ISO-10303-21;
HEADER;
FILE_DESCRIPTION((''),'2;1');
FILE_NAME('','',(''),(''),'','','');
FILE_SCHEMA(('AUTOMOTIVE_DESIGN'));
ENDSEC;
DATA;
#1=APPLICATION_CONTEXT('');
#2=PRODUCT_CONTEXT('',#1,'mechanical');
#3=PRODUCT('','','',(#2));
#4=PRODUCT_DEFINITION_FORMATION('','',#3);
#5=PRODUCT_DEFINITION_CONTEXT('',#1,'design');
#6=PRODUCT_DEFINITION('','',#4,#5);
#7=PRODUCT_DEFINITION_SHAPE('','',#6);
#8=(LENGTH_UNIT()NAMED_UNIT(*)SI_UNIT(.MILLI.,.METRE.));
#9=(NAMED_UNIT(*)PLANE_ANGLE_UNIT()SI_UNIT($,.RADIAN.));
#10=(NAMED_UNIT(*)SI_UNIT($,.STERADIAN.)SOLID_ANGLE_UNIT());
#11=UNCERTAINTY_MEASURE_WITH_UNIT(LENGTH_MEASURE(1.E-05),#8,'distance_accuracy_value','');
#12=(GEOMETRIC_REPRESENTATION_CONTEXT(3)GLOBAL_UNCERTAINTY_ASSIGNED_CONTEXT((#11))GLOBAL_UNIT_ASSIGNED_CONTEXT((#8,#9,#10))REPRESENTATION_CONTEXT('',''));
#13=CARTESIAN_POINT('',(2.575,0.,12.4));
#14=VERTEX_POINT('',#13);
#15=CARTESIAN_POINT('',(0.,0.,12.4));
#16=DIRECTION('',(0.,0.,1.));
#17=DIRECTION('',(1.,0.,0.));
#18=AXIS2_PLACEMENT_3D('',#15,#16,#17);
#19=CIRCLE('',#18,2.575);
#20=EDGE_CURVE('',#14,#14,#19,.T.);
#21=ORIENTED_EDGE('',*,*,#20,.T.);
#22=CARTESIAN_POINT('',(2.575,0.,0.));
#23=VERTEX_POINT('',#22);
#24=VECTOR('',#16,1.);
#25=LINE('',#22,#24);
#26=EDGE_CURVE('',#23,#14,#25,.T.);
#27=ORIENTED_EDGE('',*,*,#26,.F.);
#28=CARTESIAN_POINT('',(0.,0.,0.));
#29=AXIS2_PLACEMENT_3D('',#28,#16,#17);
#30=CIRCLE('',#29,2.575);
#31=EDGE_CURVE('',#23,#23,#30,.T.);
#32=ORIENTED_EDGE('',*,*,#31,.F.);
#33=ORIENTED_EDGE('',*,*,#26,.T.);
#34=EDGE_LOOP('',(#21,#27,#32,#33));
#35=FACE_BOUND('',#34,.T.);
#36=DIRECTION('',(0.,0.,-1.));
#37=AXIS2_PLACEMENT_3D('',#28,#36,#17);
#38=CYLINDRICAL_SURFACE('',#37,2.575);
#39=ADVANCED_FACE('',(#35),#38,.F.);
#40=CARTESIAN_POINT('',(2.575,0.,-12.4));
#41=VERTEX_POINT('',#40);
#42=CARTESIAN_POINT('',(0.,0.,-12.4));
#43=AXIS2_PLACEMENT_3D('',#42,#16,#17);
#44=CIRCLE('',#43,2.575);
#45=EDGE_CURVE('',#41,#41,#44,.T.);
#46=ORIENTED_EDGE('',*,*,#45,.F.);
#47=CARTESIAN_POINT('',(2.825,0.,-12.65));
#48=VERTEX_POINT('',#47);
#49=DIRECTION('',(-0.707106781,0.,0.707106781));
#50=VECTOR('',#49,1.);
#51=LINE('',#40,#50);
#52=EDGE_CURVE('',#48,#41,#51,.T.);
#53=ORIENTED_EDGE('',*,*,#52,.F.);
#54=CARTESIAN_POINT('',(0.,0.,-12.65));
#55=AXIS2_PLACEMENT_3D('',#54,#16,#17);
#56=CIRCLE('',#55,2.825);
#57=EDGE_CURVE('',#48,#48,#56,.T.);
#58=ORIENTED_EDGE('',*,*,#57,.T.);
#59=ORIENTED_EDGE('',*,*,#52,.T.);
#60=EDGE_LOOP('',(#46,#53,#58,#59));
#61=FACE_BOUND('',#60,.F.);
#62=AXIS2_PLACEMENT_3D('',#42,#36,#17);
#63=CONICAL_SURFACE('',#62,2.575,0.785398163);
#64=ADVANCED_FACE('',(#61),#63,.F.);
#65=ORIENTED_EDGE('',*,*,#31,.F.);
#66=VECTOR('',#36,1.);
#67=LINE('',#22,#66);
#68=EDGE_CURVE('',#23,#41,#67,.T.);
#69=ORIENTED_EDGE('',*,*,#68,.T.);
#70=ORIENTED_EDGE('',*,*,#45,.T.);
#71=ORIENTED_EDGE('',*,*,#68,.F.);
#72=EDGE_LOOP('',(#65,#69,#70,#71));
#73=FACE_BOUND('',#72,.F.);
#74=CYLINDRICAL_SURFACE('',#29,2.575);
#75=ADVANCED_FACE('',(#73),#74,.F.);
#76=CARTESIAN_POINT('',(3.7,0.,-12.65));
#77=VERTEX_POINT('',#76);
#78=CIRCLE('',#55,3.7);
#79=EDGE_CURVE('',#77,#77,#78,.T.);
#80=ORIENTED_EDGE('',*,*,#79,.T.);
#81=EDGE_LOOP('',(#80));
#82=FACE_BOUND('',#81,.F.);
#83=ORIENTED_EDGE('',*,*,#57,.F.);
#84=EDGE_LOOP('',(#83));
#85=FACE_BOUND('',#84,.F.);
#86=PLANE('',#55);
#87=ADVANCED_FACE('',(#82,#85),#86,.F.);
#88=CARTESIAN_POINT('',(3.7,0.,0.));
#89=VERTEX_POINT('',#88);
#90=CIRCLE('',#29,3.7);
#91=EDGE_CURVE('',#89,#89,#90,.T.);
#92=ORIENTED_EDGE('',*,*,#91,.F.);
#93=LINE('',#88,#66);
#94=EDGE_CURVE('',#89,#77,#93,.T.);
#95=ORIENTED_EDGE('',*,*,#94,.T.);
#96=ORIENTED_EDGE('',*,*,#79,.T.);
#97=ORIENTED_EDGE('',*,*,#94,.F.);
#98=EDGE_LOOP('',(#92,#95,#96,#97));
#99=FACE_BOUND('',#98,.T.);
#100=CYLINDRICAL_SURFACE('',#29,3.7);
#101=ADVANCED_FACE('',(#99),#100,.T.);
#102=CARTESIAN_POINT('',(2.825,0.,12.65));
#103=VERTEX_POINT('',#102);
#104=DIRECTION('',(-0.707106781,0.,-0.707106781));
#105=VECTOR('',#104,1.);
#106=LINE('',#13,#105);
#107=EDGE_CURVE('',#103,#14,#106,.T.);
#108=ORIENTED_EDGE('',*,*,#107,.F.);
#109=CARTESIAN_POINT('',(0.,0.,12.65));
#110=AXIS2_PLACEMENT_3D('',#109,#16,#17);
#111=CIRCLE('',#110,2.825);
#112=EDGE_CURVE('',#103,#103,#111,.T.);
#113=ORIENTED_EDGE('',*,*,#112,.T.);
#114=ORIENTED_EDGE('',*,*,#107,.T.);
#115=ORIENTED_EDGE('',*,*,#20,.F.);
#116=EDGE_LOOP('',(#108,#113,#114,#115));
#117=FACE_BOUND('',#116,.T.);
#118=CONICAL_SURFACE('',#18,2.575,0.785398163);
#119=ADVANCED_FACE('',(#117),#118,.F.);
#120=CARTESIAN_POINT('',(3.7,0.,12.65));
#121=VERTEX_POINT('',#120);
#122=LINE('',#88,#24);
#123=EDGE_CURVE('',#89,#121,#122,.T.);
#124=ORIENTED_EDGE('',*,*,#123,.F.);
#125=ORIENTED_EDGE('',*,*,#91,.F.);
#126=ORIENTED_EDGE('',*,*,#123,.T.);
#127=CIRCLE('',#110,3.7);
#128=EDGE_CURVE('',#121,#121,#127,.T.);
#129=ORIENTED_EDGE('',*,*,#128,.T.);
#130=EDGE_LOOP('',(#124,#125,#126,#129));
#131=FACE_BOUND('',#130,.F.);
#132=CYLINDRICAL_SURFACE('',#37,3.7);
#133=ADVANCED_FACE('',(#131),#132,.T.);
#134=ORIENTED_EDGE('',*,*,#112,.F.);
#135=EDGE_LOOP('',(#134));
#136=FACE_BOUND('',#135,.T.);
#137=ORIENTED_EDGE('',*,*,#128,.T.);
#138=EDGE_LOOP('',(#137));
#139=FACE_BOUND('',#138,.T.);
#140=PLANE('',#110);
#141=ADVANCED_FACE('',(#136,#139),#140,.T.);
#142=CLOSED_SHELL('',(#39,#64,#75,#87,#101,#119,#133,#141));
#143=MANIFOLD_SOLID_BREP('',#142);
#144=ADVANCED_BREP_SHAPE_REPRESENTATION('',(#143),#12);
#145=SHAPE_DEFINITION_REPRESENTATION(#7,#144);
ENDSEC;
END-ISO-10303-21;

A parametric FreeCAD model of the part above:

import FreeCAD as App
import Part
import Sketcher


def edges_at(feature, points):
    """Names of the edges that pass closest to the given points."""
    edges = feature.Shape.Edges
    near = lambda p: min(range(len(edges)), key=lambda i: edges[i].distToShape(Part.Vertex(*p))[0])
    return sorted({f"Edge{near(p) + 1}" for p in points})

doc = App.newDocument("Part")
params = doc.addObject("Spreadsheet::Sheet", "Params")
for row, (alias, value) in enumerate([
    ("sketch1_diameter", "7.4 mm"),
    ("sketch1_diameter2", "5.15 mm"),
    ("pad1_length", "25.3 mm"),
    ("chamfer_size", "0.25 mm"),
], start=1):
    params.set(f"A{row}", alias)
    params.set(f"B{row}", "=" + value)
    params.setAlias(f"B{row}", alias)

body = doc.addObject("PartDesign::Body", "Body")

# Sketch on XY plane
sketch1 = doc.addObject("Sketcher::SketchObject", "Sketch")
body.addObject(sketch1)
sketch1.AttachmentSupport = (doc.XY_Plane, [""])
sketch1.MapMode = "FlatFace"
sketch1.addGeometry(Part.Circle(App.Vector(0, 0, 0), App.Vector(0, 0, 1), 3.7), False)
sketch1.addGeometry(Part.Circle(App.Vector(0, 0, 0), App.Vector(0, 0, 1), 2.6), False)
sketch1.addConstraint(Sketcher.Constraint("Coincident", 0, 3, -1, 1))
sketch1.addConstraint(Sketcher.Constraint("Coincident", 1, 3, -1, 1))
sketch1.addConstraint(Sketcher.Constraint("Diameter", 0, 7.4))
sketch1.addConstraint(Sketcher.Constraint("Diameter", 1, 5.15))
sketch1.setExpression("Constraints[2]", "Params.sketch1_diameter")
sketch1.setExpression("Constraints[3]", "Params.sketch1_diameter2")
pad1 = doc.addObject("PartDesign::Pad", "Pad")
body.addObject(pad1)
pad1.Profile = sketch1
pad1.setExpression("Length", "Params.pad1_length")
pad1.Midplane = True
doc.recompute()

chamfer = doc.addObject("PartDesign::Chamfer", "Chamfer")
body.addObject(chamfer)
chamfer.Base = (pad1, edges_at(pad1, [(-2.575, 0, 12.65), (-2.575, 0, -12.65)]))
chamfer.setExpression("Size", "Params.chamfer_size")

doc.recompute()
